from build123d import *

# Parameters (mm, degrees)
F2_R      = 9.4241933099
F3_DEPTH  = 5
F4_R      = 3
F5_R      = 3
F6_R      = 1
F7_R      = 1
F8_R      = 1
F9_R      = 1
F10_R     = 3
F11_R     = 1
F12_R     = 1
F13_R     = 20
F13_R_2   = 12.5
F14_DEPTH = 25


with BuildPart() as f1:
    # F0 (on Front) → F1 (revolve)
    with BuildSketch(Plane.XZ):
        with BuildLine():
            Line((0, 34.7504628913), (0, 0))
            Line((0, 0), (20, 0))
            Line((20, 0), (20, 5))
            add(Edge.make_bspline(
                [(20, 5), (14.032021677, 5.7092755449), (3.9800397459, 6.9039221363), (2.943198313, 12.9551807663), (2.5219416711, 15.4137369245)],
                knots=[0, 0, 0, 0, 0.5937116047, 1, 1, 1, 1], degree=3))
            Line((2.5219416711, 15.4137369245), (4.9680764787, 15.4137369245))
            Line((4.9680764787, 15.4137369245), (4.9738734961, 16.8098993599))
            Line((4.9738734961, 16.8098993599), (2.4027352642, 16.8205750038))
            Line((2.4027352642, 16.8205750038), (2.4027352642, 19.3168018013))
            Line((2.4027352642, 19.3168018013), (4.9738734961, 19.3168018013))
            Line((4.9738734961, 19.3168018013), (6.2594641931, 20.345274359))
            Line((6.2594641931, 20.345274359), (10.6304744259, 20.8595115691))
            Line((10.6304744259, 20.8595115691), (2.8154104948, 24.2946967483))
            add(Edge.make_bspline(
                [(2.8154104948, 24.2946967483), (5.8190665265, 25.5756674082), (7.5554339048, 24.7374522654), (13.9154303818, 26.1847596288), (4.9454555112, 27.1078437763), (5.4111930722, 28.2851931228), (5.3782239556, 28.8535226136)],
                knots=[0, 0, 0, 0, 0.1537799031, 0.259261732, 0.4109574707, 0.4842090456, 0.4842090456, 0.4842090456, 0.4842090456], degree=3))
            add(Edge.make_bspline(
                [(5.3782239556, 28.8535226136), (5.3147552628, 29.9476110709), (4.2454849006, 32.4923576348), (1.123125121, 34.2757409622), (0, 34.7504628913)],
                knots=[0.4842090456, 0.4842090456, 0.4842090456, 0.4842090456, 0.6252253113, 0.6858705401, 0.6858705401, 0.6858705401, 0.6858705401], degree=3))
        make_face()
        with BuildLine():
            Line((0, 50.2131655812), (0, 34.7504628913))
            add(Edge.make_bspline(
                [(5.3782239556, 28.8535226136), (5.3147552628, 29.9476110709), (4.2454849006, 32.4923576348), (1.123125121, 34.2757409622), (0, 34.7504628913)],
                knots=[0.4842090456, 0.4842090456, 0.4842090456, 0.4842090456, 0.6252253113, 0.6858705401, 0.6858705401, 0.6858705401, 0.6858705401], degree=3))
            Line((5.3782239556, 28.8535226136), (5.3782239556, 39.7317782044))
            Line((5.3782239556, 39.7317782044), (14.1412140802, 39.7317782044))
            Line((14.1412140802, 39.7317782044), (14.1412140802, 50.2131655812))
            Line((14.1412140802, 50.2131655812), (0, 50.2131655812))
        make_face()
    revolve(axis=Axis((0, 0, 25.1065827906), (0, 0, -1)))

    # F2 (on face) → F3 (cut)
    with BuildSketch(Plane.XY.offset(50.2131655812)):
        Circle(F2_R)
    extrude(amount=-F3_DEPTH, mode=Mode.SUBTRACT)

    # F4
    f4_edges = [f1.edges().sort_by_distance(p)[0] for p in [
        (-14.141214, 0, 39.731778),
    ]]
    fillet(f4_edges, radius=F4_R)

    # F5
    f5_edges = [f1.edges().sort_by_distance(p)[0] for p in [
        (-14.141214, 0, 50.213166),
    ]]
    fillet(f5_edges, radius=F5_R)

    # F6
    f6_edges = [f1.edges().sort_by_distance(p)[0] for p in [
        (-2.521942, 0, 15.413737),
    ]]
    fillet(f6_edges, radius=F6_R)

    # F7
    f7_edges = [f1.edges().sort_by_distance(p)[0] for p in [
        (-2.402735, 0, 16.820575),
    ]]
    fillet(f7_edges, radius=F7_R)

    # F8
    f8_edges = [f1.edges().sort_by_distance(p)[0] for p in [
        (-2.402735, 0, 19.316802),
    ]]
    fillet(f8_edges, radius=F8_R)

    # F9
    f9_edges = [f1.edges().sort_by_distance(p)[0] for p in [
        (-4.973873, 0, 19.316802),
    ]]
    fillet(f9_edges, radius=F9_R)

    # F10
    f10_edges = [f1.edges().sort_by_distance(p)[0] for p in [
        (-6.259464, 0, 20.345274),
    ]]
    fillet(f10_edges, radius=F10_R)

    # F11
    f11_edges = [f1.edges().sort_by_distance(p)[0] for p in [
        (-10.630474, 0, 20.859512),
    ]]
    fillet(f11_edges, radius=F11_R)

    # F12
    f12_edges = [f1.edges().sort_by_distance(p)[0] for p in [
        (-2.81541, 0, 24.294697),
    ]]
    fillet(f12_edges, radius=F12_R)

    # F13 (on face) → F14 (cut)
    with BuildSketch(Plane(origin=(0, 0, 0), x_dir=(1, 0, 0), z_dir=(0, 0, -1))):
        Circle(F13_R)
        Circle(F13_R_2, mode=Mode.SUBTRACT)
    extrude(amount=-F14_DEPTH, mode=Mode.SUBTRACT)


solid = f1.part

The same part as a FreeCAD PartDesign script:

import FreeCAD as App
import Part
import Sketcher

V = App.Vector
Q = App.Units.Quantity


def edges_at(feature, points):
    """Names of the edges that pass closest to the given points."""
    edges = feature.Shape.Edges
    near = lambda p: min(range(len(edges)), key=lambda i: edges[i].distToShape(Part.Vertex(*p))[0])
    return sorted({f"Edge{near(p) + 1}" for p in points})

doc = App.newDocument("Part")
body = doc.addObject("PartDesign::Body", "Body")

sketch1 = body.newObject("Sketcher::SketchObject", "Sketch")
sketch1.AttachmentSupport = (doc.getObject("XZ_Plane"), [""])
sketch1.MapMode = "FlatFace"
sketch1.addGeometry(Part.LineSegment(V(0, 0, 0), V(20, 0, 0)), False)
sketch1.addGeometry(Part.LineSegment(V(20, 0, 0), V(20, 5, 0)), False)
sketch1.addGeometry(Part.BSplineCurve([V(20, 5, 0), V(14.032022, 5.709276, 0), V(3.98004, 6.903922, 0), V(2.943198, 12.955181, 0), V(2.521942, 15.413737, 0)], [4, 1, 4], [0, 0.593711605, 1], False, 3, [1, 1, 1, 1, 1], False), False)
sketch1.addGeometry(Part.LineSegment(V(2.521942, 15.413737, 0), V(4.968076, 15.413737, 0)), False)
sketch1.addGeometry(Part.LineSegment(V(4.968076, 15.413737, 0), V(4.973873, 16.809899, 0)), False)
sketch1.addGeometry(Part.LineSegment(V(4.973873, 16.809899, 0), V(2.402735, 16.820575, 0)), False)
sketch1.addGeometry(Part.LineSegment(V(2.402735, 16.820575, 0), V(2.402735, 19.316802, 0)), False)
sketch1.addGeometry(Part.LineSegment(V(2.402735, 19.316802, 0), V(4.973873, 19.316802, 0)), False)
sketch1.addGeometry(Part.LineSegment(V(4.973873, 19.316802, 0), V(6.259464, 20.345274, 0)), False)
sketch1.addGeometry(Part.LineSegment(V(6.259464, 20.345274, 0), V(10.630474, 20.859512, 0)), False)
sketch1.addGeometry(Part.LineSegment(V(10.630474, 20.859512, 0), V(2.81541, 24.294697, 0)), False)
sketch1.addGeometry(Part.BSplineCurve([V(2.81541, 24.294697, 0), V(5.819067, 25.575667, 0), V(7.555434, 24.737452, 0), V(13.91543, 26.18476, 0), V(4.945456, 27.107844, 0), V(5.411193, 28.285193, 0), V(5.378224, 28.853523, 0)], [4, 1, 1, 1, 4], [0, 0.153779903, 0.259261732, 0.410957471, 0.484209046], False, 3, [1, 1, 1, 1, 1, 1, 1], False), False)
sketch1.addGeometry(Part.LineSegment(V(5.378224, 28.853523, 0), V(5.378224, 39.731778, 0)), False)
sketch1.addGeometry(Part.LineSegment(V(5.378224, 39.731778, 0), V(14.141214, 39.731778, 0)), False)
sketch1.addGeometry(Part.LineSegment(V(14.141214, 39.731778, 0), V(14.141214, 50.213166, 0)), False)
sketch1.addGeometry(Part.LineSegment(V(14.141214, 50.213166, 0), V(0, 50.213166, 0)), False)
sketch1.addGeometry(Part.LineSegment(V(0, 50.213166, 0), V(0, 0, 0)), False)
sketch1.addConstraint(Sketcher.Constraint("Block", 2))
sketch1.addConstraint(Sketcher.Constraint("Block", 11))
sketch1.addConstraint(Sketcher.Constraint("Coincident", 0, 2, 1, 1))
sketch1.addConstraint(Sketcher.Constraint("Coincident", 1, 2, 2, 1))
sketch1.addConstraint(Sketcher.Constraint("Coincident", 2, 2, 3, 1))
sketch1.addConstraint(Sketcher.Constraint("Coincident", 3, 2, 4, 1))
sketch1.addConstraint(Sketcher.Constraint("Coincident", 4, 2, 5, 1))
sketch1.addConstraint(Sketcher.Constraint("Coincident", 5, 2, 6, 1))
sketch1.addConstraint(Sketcher.Constraint("Coincident", 6, 2, 7, 1))
sketch1.addConstraint(Sketcher.Constraint("Coincident", 7, 2, 8, 1))
sketch1.addConstraint(Sketcher.Constraint("Coincident", 8, 2, 9, 1))
sketch1.addConstraint(Sketcher.Constraint("Coincident", 9, 2, 10, 1))
sketch1.addConstraint(Sketcher.Constraint("Coincident", 10, 2, 11, 1))
sketch1.addConstraint(Sketcher.Constraint("Coincident", 11, 2, 12, 1))
sketch1.addConstraint(Sketcher.Constraint("Coincident", 12, 2, 13, 1))
sketch1.addConstraint(Sketcher.Constraint("Coincident", 13, 2, 14, 1))
sketch1.addConstraint(Sketcher.Constraint("Coincident", 14, 2, 15, 1))
sketch1.addConstraint(Sketcher.Constraint("Coincident", 15, 2, 16, 1))
sketch1.addConstraint(Sketcher.Constraint("Coincident", 16, 2, 0, 1))
sketch1.addConstraint(Sketcher.Constraint("Horizontal", 0))
sketch1.addConstraint(Sketcher.Constraint("Vertical", 1))
sketch1.addConstraint(Sketcher.Constraint("Horizontal", 3))
sketch1.addConstraint(Sketcher.Constraint("Vertical", 6))
sketch1.addConstraint(Sketcher.Constraint("Horizontal", 7))
sketch1.addConstraint(Sketcher.Constraint("Vertical", 12))
sketch1.addConstraint(Sketcher.Constraint("Horizontal", 13))
sketch1.addConstraint(Sketcher.Constraint("Vertical", 14))
sketch1.addConstraint(Sketcher.Constraint("Horizontal", 15))
sketch1.addConstraint(Sketcher.Constraint("Vertical", 16))
sketch1.addConstraint(Sketcher.Constraint("Coincident", 16, 2, -1, 1))
sketch1.addConstraint(Sketcher.Constraint("Perpendicular", 4, 5))
sketch1.addConstraint(Sketcher.Constraint("Vertical", 4, 2, 7, 2))
sketch1.addConstraint(Sketcher.Constraint("DistanceX", 7, 1, 7, 2, Q("2.571138 mm")))
sketch1.addConstraint(Sketcher.Constraint("DistanceX", 13, 1, 13, 2, Q("8.76299 mm")))
sketch1.addConstraint(Sketcher.Constraint("DistanceY", -1, 1, 4, 2, Q("16.809899 mm")))
sketch1.addConstraint(Sketcher.Constraint("DistanceY", -1, 1, 6, 2, Q("19.316802 mm")))
sketch1.addConstraint(Sketcher.Constraint("DistanceY", 5, 2, 8, 2, Q("3.524699 mm")))
sketch1.addConstraint(Sketcher.Constraint("DistanceX", 7, 2, 9, 2, Q("5.656601 mm")))
sketch1.addConstraint(Sketcher.Constraint("Distance", 8, Q("1.646359 mm")))
sketch1.addConstraint(Sketcher.Constraint("DistanceX", 3, 1, 3, 2, Q("2.446135 mm")))
sketch1.addConstraint(Sketcher.Constraint("DistanceY", 6, 1, 6, 2, Q("2.496227 mm")))
sketch1.addConstraint(Sketcher.Constraint("DistanceY", 12, 1, 12, 2, Q("10.878256 mm")))
sketch1.addConstraint(Sketcher.Constraint("DistanceY", 14, 1, 14, 2, Q("10.481387 mm")))
sketch1.addConstraint(Sketcher.Constraint("DistanceY", -1, 1, 9, 2, Q("20.859512 mm")))
revolution = body.newObject("PartDesign::Revolution", "Revolution")
revolution.Profile = sketch1
revolution.ReferenceAxis = (sketch1, ["V_Axis"])
revolution.Angle = 360

sketch2 = body.newObject("Sketcher::SketchObject", "Sketch001")
sketch2.AttachmentSupport = (doc.getObject("XY_Plane"), [""])
sketch2.MapMode = "FlatFace"
sketch2.AttachmentOffset = App.Placement(V(0, 0, 50.213166), App.Rotation())
sketch2.addGeometry(Part.Circle(V(0, 0, 0), V(0, 0, 1), 9), False)
sketch2.addConstraint(Sketcher.Constraint("Coincident", 0, 3, -1, 1))
sketch2.addConstraint(Sketcher.Constraint("Diameter", 0, Q("18.848387 mm")))
pocket1 = body.newObject("PartDesign::Pocket", "Pocket")
pocket1.Profile = sketch2
pocket1.Length = 5
doc.recompute()

fillet = body.newObject("PartDesign::Fillet", "Fillet")
fillet.Base = (pocket1, edges_at(pocket1, [(-14.141, 0, 39.732)]))
fillet.Radius = 3
doc.recompute()

fillet2 = body.newObject("PartDesign::Fillet", "Fillet001")
fillet2.Base = (fillet, edges_at(fillet, [(-14.141, 0, 50.213)]))
fillet2.Radius = 3
doc.recompute()

fillet3 = body.newObject("PartDesign::Fillet", "Fillet002")
fillet3.Base = (fillet2, edges_at(fillet2, [(-2.522, 0, 15.414)]))
fillet3.Radius = 1
doc.recompute()

fillet4 = body.newObject("PartDesign::Fillet", "Fillet003")
fillet4.Base = (fillet3, edges_at(fillet3, [(-2.403, 0, 16.821)]))
fillet4.Radius = 1
doc.recompute()

fillet5 = body.newObject("PartDesign::Fillet", "Fillet004")
fillet5.Base = (fillet4, edges_at(fillet4, [(-2.403, 0, 19.317)]))
fillet5.Radius = 1
doc.recompute()

fillet6 = body.newObject("PartDesign::Fillet", "Fillet005")
fillet6.Base = (fillet5, edges_at(fillet5, [(-4.974, 0, 19.317)]))
fillet6.Radius = 1
doc.recompute()

fillet7 = body.newObject("PartDesign::Fillet", "Fillet006")
fillet7.Base = (fillet6, edges_at(fillet6, [(-6.259, 0, 20.345)]))
fillet7.Radius = 3
doc.recompute()

fillet8 = body.newObject("PartDesign::Fillet", "Fillet007")
fillet8.Base = (fillet7, edges_at(fillet7, [(-10.63, 0, 20.86)]))
fillet8.Radius = 1
doc.recompute()

fillet9 = body.newObject("PartDesign::Fillet", "Fillet008")
fillet9.Base = (fillet8, edges_at(fillet8, [(-2.815, 0, 24.295)]))
fillet9.Radius = 1

sketch3 = body.newObject("Sketcher::SketchObject", "Sketch002")
sketch3.AttachmentSupport = (doc.getObject("XY_Plane"), [""])
sketch3.MapMode = "FlatFace"
sketch3.addGeometry(Part.Circle(V(0, 0, 0), V(0, 0, 1), 20), False)
sketch3.addGeometry(Part.Circle(V(0, 0, 0), V(0, 0, 1), 12), False)
sketch3.addConstraint(Sketcher.Constraint("Coincident", 0, 3, -1, 1))
sketch3.addConstraint(Sketcher.Constraint("Coincident", 1, 3, -1, 1))
sketch3.addConstraint(Sketcher.Constraint("Diameter", 0, Q("40 mm")))
sketch3.addConstraint(Sketcher.Constraint("Diameter", 1, Q("25 mm")))
pocket2 = body.newObject("PartDesign::Pocket", "Pocket001")
pocket2.Profile = sketch3
pocket2.Length = 25
pocket2.Reversed = True

doc.recompute()
